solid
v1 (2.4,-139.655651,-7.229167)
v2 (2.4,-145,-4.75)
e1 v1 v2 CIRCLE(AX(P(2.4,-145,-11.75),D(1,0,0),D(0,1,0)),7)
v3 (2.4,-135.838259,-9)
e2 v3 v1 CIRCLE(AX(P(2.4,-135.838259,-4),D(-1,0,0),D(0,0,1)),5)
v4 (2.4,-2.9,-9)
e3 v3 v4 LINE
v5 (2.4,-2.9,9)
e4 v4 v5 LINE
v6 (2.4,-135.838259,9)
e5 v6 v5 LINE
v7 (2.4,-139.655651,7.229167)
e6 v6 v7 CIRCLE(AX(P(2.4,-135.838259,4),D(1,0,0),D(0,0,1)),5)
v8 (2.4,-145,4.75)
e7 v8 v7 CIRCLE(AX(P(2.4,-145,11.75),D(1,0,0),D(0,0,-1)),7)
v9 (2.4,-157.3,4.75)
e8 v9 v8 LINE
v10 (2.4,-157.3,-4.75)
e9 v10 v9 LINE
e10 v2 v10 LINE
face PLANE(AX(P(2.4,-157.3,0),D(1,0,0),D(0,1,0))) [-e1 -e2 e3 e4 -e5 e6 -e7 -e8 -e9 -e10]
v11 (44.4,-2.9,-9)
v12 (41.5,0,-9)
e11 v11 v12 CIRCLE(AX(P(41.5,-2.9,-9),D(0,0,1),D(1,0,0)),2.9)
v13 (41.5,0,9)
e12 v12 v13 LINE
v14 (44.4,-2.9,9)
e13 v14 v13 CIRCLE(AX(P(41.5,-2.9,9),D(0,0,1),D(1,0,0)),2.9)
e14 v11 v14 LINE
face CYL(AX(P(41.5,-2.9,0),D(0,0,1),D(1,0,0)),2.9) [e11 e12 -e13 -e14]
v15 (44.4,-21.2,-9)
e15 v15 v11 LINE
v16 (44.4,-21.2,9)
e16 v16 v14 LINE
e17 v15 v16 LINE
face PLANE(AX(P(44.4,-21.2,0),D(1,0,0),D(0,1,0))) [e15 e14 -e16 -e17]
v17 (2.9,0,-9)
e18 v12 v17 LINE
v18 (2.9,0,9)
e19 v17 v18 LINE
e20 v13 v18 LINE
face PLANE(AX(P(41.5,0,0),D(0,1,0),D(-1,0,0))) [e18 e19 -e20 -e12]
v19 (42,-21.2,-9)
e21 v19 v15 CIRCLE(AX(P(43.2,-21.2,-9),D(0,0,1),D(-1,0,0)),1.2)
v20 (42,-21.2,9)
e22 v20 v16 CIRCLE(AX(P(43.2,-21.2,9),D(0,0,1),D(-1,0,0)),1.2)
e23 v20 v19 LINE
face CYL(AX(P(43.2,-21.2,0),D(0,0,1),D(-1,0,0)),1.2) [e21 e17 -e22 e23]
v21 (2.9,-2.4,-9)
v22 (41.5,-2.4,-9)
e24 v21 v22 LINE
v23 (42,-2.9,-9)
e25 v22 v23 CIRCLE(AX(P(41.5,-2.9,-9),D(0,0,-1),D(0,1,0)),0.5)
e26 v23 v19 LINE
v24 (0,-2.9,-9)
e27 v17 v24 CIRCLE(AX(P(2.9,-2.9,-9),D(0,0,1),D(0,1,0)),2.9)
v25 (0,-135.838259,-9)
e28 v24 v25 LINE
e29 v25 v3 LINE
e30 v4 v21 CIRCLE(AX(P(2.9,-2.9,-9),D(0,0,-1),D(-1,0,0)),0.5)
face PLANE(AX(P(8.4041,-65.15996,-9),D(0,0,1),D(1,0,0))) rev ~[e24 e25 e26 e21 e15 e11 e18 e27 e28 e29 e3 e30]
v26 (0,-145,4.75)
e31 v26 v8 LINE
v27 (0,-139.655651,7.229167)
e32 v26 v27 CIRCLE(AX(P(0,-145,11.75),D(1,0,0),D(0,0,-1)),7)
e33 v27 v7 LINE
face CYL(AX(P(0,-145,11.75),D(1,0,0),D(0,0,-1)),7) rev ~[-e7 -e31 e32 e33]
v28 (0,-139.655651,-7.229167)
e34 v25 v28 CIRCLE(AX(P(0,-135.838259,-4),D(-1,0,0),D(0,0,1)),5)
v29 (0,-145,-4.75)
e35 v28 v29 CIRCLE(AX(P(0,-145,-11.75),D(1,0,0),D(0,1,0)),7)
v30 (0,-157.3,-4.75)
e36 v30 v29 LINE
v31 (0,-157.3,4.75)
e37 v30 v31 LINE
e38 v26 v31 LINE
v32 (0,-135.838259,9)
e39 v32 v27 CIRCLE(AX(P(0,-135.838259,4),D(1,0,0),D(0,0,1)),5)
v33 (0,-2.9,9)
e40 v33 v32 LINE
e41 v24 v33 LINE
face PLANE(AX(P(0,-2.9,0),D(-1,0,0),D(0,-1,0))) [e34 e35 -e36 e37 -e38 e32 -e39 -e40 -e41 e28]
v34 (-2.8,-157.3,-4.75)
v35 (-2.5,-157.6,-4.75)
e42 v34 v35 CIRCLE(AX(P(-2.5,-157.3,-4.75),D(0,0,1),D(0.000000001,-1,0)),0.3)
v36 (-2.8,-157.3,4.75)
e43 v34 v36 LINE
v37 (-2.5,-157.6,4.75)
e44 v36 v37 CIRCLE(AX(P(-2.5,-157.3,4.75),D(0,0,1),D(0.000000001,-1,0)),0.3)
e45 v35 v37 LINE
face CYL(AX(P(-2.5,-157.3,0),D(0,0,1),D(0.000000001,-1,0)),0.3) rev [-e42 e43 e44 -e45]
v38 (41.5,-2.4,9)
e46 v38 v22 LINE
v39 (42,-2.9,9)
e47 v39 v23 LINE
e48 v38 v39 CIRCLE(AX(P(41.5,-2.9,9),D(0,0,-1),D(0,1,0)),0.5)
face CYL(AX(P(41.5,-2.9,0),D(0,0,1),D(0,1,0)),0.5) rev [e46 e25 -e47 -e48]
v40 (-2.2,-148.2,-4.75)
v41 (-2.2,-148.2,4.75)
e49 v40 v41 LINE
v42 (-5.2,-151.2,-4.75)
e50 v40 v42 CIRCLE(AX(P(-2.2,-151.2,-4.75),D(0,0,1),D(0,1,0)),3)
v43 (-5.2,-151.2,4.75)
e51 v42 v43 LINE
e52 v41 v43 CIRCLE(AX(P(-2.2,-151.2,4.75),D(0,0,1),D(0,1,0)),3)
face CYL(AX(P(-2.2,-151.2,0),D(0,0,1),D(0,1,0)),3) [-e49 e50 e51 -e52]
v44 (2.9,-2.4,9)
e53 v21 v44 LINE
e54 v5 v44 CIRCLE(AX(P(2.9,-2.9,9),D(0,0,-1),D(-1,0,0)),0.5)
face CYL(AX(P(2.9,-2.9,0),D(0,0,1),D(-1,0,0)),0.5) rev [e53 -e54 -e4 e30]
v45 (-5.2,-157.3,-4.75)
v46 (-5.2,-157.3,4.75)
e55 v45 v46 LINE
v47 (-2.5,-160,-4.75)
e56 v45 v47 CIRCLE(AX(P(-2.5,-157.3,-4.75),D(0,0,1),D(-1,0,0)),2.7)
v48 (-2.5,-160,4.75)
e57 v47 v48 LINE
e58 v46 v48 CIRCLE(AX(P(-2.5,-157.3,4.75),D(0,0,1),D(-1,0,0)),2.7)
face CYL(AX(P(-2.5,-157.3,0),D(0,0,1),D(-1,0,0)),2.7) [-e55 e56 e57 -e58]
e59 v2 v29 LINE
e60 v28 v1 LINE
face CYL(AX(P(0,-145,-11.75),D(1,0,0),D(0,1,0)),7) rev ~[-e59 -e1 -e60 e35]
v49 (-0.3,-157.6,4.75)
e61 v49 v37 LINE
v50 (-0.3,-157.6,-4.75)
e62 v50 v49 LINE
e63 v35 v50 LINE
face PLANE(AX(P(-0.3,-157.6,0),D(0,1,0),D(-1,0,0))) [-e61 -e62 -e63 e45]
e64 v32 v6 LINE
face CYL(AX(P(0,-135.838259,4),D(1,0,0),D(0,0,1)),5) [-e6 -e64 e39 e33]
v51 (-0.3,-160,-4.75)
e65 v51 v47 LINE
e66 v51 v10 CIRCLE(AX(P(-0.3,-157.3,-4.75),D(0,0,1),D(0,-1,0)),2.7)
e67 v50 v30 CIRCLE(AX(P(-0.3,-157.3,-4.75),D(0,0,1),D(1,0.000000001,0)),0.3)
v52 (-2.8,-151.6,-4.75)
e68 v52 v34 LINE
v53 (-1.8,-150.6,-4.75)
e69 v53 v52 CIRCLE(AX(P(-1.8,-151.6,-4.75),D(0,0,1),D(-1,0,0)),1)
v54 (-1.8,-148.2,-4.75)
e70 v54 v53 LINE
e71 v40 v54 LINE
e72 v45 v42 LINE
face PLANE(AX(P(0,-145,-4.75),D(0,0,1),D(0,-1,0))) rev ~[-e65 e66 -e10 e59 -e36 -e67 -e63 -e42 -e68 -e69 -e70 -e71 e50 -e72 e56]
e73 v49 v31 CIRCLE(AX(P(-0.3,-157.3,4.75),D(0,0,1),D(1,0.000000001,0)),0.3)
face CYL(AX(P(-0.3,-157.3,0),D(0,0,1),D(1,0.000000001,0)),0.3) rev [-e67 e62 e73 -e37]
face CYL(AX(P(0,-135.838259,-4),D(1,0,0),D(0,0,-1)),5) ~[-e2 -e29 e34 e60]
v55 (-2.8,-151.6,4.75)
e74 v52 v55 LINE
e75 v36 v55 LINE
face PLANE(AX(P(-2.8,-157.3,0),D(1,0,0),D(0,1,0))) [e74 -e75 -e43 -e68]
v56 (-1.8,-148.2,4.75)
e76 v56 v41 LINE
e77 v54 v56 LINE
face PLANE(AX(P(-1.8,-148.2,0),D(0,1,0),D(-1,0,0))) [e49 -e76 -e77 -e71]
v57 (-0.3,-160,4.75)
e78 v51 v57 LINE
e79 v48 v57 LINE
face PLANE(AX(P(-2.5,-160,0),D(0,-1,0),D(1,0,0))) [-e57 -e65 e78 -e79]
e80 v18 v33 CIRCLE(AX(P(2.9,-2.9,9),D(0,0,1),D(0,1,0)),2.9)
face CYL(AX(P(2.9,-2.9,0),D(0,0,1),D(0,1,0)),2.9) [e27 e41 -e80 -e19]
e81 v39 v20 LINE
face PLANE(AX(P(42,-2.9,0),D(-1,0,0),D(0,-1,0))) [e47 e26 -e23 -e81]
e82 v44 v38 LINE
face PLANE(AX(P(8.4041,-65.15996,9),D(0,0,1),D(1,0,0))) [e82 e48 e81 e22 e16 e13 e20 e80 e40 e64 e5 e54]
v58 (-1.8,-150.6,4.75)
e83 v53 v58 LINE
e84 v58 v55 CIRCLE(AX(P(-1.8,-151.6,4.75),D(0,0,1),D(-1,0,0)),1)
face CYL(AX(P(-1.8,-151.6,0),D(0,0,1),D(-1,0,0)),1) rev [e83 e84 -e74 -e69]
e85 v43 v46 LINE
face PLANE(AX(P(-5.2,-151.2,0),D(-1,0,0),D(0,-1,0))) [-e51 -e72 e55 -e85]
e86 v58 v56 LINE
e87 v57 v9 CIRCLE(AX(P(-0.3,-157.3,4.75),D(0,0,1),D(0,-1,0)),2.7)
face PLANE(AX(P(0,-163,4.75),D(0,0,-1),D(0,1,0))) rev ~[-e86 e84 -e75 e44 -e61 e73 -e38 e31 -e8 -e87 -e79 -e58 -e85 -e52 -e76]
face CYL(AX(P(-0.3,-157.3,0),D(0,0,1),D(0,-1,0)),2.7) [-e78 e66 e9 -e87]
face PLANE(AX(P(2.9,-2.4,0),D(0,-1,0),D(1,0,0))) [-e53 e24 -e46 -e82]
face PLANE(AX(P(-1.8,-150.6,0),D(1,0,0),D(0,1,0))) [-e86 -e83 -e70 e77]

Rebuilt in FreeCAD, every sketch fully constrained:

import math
import FreeCAD as App
import Part
import Sketcher
from FreeCAD import Vector


def edges_at(feature, points):
    """Names of the edges that pass closest to the given points."""
    edges = feature.Shape.Edges
    near = lambda p: min(range(len(edges)), key=lambda i: edges[i].distToShape(Part.Vertex(*p))[0])
    return sorted({f"Edge{near(p) + 1}" for p in points})

doc = App.newDocument("Part")
body = doc.addObject("PartDesign::Body", "Body")

# Sketch on XY plane
sketch1 = doc.addObject("Sketcher::SketchObject", "Sketch")
body.addObject(sketch1)
sketch1.AttachmentSupport = (doc.XY_Plane, [""])
sketch1.MapMode = "FlatFace"
sketch1.addGeometry([
    Part.ArcOfCircle(Part.Circle(Vector(43.2, -21.2, 0), Vector(0, 0, 1), 1.2), math.radians(180), math.radians(360)),  # 0
    Part.LineSegment(Vector(44.4, -21.2, 0), Vector(44.4, -2.9, 0)),  # 1
    Part.ArcOfCircle(Part.Circle(Vector(41.5, -2.9, 0), Vector(0, 0, 1), 2.9), math.radians(0), math.radians(90)),  # 2
    Part.LineSegment(Vector(41.5, 0, 0), Vector(2.9, 0, 0)),  # 3
    Part.ArcOfCircle(Part.Circle(Vector(2.9, -2.9, 0), Vector(0, 0, 1), 2.9), math.radians(90), math.radians(180)),  # 4
    Part.LineSegment(Vector(0, -2.9, 0), Vector(0, -157.3, 0)),  # 5
    Part.ArcOfCircle(Part.Circle(Vector(-0.3, -157.3, 0), Vector(0, 0, 1), 0.3), math.radians(-90), math.radians(0)),  # 6
    Part.LineSegment(Vector(-0.3, -157.6, 0), Vector(-2.5, -157.6, 0)),  # 7
    Part.ArcOfCircle(Part.Circle(Vector(-2.5, -157.3, 0), Vector(0, 0, 1), 0.3), math.radians(180), math.radians(270)),  # 8
    Part.LineSegment(Vector(-2.8, -157.3, 0), Vector(-2.8, -151.6, 0)),  # 9
    Part.ArcOfCircle(Part.Circle(Vector(-1.8, -151.6, 0), Vector(0, 0, 1), 1), math.radians(90), math.radians(180)),  # 10
    Part.LineSegment(Vector(-1.8, -150.6, 0), Vector(-1.8, -148.2, 0)),  # 11
    Part.LineSegment(Vector(-1.8, -148.2, 0), Vector(-2.2, -148.2, 0)),  # 12
    Part.ArcOfCircle(Part.Circle(Vector(-2.2, -151.2, 0), Vector(0, 0, 1), 3), math.radians(90), math.radians(180)),  # 13
    Part.LineSegment(Vector(-5.2, -151.2, 0), Vector(-5.2, -157.3, 0)),  # 14
    Part.ArcOfCircle(Part.Circle(Vector(-2.5, -157.3, 0), Vector(0, 0, 1), 2.7), math.radians(180), math.radians(270)),  # 15
    Part.LineSegment(Vector(-2.5, -160, 0), Vector(-0.3, -160, 0)),  # 16
    Part.ArcOfCircle(Part.Circle(Vector(-0.3, -157.3, 0), Vector(0, 0, 1), 2.7), math.radians(-90), math.radians(0)),  # 17
    Part.LineSegment(Vector(2.4, -157.3, 0), Vector(2.4, -2.9, 0)),  # 18
    Part.ArcOfCircle(Part.Circle(Vector(2.9, -2.9, 0), Vector(0, 0, 1), 0.5), math.radians(90), math.radians(180)),  # 19
    Part.LineSegment(Vector(2.9, -2.4, 0), Vector(41.5, -2.4, 0)),  # 20
    Part.ArcOfCircle(Part.Circle(Vector(41.5, -2.9, 0), Vector(0, 0, 1), 0.5), math.radians(0), math.radians(90)),  # 21
    Part.LineSegment(Vector(42, -2.9, 0), Vector(42, -21.2, 0)),  # 22
], False)
sketch1.addConstraint([
    Sketcher.Constraint("Tangent", 0, 2, 1, 1),
    Sketcher.Constraint("Tangent", 1, 2, 2, 1),
    Sketcher.Constraint("Tangent", 2, 2, 3, 1),
    Sketcher.Constraint("Tangent", 3, 2, 4, 1),
    Sketcher.Constraint("Tangent", 4, 2, 5, 1),
    Sketcher.Constraint("Tangent", 5, 2, 6, 2),
    Sketcher.Constraint("Tangent", 6, 1, 7, 1),
    Sketcher.Constraint("Tangent", 7, 2, 8, 2),
    Sketcher.Constraint("Tangent", 8, 1, 9, 1),
    Sketcher.Constraint("Tangent", 9, 2, 10, 2),
    Sketcher.Constraint("Coincident", 10, 1, 11, 1),
    Sketcher.Constraint("Coincident", 11, 2, 12, 1),
    Sketcher.Constraint("Tangent", 12, 2, 13, 1),
    Sketcher.Constraint("Tangent", 13, 2, 14, 1),
    Sketcher.Constraint("Tangent", 14, 2, 15, 1),
    Sketcher.Constraint("Tangent", 15, 2, 16, 1),
    Sketcher.Constraint("Tangent", 16, 2, 17, 1),
    Sketcher.Constraint("Tangent", 17, 2, 18, 1),
    Sketcher.Constraint("Tangent", 18, 2, 19, 2),
    Sketcher.Constraint("Tangent", 19, 1, 20, 1),
    Sketcher.Constraint("Tangent", 20, 2, 21, 2),
    Sketcher.Constraint("Tangent", 21, 1, 22, 1),
    Sketcher.Constraint("Tangent", 22, 2, 0, 1),
    Sketcher.Constraint("Vertical", 1),
    Sketcher.Constraint("Horizontal", 3),
    Sketcher.Constraint("Vertical", 5),
    Sketcher.Constraint("Horizontal", 7),
    Sketcher.Constraint("Vertical", 9),
    Sketcher.Constraint("Vertical", 11),
    Sketcher.Constraint("Horizontal", 12),
    Sketcher.Constraint("Vertical", 14),
    Sketcher.Constraint("Horizontal", 16),
    Sketcher.Constraint("Vertical", 18),
    Sketcher.Constraint("Horizontal", 20),
    Sketcher.Constraint("Vertical", 22),
    Sketcher.Constraint("Coincident", 15, 3, 8, 3),
    Sketcher.Constraint("Coincident", 17, 3, 6, 3),
    Sketcher.Constraint("Coincident", 19, 3, 4, 3),
    Sketcher.Constraint("Coincident", 21, 3, 2, 3),
    Sketcher.Constraint("Equal", 2, 4),
    Sketcher.Constraint("Equal", 6, 8),
    Sketcher.Constraint("PointOnObject", 2, 2, -1),
    Sketcher.Constraint("PointOnObject", 4, 2, -2),
    Sketcher.Constraint("Radius", 10, 1.0),
    Sketcher.Constraint("Radius", 13, 3.0),
    Sketcher.Constraint("Radius", 0, 1.2),
    Sketcher.Constraint("Radius", 2, 2.9),
    Sketcher.Constraint("Radius", 6, 0.3),
    Sketcher.Constraint("DistanceX", 3, 2, 3, 1, 38.6),
    Sketcher.Constraint("DistanceX", 7, 2, 7, 1, 2.2),
    Sketcher.Constraint("DistanceX", 12, 2, 12, 1, 0.4),
    Sketcher.Constraint("DistanceY", 1, 1, 1, 2, 18.3),
    Sketcher.Constraint("DistanceY", 5, 2, 5, 1, 154.4),
    Sketcher.Constraint("DistanceY", 9, 1, 9, 2, 5.7),
    Sketcher.Constraint("DistanceY", 11, 1, 11, 2, 2.4),
])
pad1 = doc.addObject("PartDesign::Pad", "Pad")
body.addObject(pad1)
pad1.Profile = sketch1
pad1.Length = 18
pad1.Midplane = True

# Sketch on YZ plane
sketch2 = doc.addObject("Sketcher::SketchObject", "Sketch001")
body.addObject(sketch2)
sketch2.AttachmentSupport = (doc.YZ_Plane, [""])
sketch2.MapMode = "FlatFace"
sketch2.addGeometry([
    Part.LineSegment(Vector(-163, 5, 0), Vector(-145, 5, 0)),  # 0
    Part.ArcOfCircle(Part.Circle(Vector(-145, 12, 0), Vector(0, 0, 1), 7), math.radians(-90), math.radians(0)),  # 1
    Part.LineSegment(Vector(-138, 12, 0), Vector(-168, 12, 0)),  # 2
    Part.LineSegment(Vector(-168, 12, 0), Vector(-168, -12, 0)),  # 3
    Part.LineSegment(Vector(-168, -12, 0), Vector(-138, -12, 0)),  # 4
    Part.ArcOfCircle(Part.Circle(Vector(-145, -12, 0), Vector(0, 0, 1), 7), math.radians(0), math.radians(90)),  # 5
    Part.LineSegment(Vector(-145, -5, 0), Vector(-163, -5, 0)),  # 6
    Part.LineSegment(Vector(-163, -5, 0), Vector(-163, 5, 0)),  # 7
], False)
sketch2.addConstraint([
    Sketcher.Constraint("Tangent", 0, 2, 1, 1),
    Sketcher.Constraint("Coincident", 1, 2, 2, 1),
    Sketcher.Constraint("Coincident", 2, 2, 3, 1),
    Sketcher.Constraint("Coincident", 3, 2, 4, 1),
    Sketcher.Constraint("Coincident", 4, 2, 5, 1),
    Sketcher.Constraint("Tangent", 5, 2, 6, 1),
    Sketcher.Constraint("Coincident", 6, 2, 7, 1),
    Sketcher.Constraint("Coincident", 7, 2, 0, 1),
    Sketcher.Constraint("Horizontal", 0),
    Sketcher.Constraint("Horizontal", 2),
    Sketcher.Constraint("Vertical", 3),
    Sketcher.Constraint("Horizontal", 4),
    Sketcher.Constraint("Horizontal", 6),
    Sketcher.Constraint("Vertical", 7),
    Sketcher.Constraint("Equal", 1, 5),
    Sketcher.Constraint("Symmetric", 1, 3, 5, 3, -1),
    Sketcher.Constraint("Horizontal", 5, 3, 3, 2),
    Sketcher.Constraint("Radius", 1, 7.0),
    Sketcher.Constraint("DistanceX", 0, 1, 0, 2, 18.0),
    Sketcher.Constraint("DistanceX", 2, 2, 2, 1, 30.0),
    Sketcher.Constraint("DistanceY", 3, 2, 3, 1, 23.5),
    Sketcher.Constraint("DistanceY", 7, 1, 7, 2, 9.5),
    Sketcher.Constraint("DistanceX", 1, 3, -1, 1, 145.0),
])
pocket1 = doc.addObject("PartDesign::Pocket", "Pocket")
body.addObject(pocket1)
pocket1.Profile = sketch2
pocket1.Length = 20
pocket1.Midplane = True
doc.recompute()

fillet = doc.addObject("PartDesign::Fillet", "Fillet")
body.addObject(fillet)
fillet.Base = (pocket1, edges_at(pocket1, [(1.2, -138.563, 9), (1.2, -138.563, -9)]))
fillet.Radius = 5

doc.recompute()
